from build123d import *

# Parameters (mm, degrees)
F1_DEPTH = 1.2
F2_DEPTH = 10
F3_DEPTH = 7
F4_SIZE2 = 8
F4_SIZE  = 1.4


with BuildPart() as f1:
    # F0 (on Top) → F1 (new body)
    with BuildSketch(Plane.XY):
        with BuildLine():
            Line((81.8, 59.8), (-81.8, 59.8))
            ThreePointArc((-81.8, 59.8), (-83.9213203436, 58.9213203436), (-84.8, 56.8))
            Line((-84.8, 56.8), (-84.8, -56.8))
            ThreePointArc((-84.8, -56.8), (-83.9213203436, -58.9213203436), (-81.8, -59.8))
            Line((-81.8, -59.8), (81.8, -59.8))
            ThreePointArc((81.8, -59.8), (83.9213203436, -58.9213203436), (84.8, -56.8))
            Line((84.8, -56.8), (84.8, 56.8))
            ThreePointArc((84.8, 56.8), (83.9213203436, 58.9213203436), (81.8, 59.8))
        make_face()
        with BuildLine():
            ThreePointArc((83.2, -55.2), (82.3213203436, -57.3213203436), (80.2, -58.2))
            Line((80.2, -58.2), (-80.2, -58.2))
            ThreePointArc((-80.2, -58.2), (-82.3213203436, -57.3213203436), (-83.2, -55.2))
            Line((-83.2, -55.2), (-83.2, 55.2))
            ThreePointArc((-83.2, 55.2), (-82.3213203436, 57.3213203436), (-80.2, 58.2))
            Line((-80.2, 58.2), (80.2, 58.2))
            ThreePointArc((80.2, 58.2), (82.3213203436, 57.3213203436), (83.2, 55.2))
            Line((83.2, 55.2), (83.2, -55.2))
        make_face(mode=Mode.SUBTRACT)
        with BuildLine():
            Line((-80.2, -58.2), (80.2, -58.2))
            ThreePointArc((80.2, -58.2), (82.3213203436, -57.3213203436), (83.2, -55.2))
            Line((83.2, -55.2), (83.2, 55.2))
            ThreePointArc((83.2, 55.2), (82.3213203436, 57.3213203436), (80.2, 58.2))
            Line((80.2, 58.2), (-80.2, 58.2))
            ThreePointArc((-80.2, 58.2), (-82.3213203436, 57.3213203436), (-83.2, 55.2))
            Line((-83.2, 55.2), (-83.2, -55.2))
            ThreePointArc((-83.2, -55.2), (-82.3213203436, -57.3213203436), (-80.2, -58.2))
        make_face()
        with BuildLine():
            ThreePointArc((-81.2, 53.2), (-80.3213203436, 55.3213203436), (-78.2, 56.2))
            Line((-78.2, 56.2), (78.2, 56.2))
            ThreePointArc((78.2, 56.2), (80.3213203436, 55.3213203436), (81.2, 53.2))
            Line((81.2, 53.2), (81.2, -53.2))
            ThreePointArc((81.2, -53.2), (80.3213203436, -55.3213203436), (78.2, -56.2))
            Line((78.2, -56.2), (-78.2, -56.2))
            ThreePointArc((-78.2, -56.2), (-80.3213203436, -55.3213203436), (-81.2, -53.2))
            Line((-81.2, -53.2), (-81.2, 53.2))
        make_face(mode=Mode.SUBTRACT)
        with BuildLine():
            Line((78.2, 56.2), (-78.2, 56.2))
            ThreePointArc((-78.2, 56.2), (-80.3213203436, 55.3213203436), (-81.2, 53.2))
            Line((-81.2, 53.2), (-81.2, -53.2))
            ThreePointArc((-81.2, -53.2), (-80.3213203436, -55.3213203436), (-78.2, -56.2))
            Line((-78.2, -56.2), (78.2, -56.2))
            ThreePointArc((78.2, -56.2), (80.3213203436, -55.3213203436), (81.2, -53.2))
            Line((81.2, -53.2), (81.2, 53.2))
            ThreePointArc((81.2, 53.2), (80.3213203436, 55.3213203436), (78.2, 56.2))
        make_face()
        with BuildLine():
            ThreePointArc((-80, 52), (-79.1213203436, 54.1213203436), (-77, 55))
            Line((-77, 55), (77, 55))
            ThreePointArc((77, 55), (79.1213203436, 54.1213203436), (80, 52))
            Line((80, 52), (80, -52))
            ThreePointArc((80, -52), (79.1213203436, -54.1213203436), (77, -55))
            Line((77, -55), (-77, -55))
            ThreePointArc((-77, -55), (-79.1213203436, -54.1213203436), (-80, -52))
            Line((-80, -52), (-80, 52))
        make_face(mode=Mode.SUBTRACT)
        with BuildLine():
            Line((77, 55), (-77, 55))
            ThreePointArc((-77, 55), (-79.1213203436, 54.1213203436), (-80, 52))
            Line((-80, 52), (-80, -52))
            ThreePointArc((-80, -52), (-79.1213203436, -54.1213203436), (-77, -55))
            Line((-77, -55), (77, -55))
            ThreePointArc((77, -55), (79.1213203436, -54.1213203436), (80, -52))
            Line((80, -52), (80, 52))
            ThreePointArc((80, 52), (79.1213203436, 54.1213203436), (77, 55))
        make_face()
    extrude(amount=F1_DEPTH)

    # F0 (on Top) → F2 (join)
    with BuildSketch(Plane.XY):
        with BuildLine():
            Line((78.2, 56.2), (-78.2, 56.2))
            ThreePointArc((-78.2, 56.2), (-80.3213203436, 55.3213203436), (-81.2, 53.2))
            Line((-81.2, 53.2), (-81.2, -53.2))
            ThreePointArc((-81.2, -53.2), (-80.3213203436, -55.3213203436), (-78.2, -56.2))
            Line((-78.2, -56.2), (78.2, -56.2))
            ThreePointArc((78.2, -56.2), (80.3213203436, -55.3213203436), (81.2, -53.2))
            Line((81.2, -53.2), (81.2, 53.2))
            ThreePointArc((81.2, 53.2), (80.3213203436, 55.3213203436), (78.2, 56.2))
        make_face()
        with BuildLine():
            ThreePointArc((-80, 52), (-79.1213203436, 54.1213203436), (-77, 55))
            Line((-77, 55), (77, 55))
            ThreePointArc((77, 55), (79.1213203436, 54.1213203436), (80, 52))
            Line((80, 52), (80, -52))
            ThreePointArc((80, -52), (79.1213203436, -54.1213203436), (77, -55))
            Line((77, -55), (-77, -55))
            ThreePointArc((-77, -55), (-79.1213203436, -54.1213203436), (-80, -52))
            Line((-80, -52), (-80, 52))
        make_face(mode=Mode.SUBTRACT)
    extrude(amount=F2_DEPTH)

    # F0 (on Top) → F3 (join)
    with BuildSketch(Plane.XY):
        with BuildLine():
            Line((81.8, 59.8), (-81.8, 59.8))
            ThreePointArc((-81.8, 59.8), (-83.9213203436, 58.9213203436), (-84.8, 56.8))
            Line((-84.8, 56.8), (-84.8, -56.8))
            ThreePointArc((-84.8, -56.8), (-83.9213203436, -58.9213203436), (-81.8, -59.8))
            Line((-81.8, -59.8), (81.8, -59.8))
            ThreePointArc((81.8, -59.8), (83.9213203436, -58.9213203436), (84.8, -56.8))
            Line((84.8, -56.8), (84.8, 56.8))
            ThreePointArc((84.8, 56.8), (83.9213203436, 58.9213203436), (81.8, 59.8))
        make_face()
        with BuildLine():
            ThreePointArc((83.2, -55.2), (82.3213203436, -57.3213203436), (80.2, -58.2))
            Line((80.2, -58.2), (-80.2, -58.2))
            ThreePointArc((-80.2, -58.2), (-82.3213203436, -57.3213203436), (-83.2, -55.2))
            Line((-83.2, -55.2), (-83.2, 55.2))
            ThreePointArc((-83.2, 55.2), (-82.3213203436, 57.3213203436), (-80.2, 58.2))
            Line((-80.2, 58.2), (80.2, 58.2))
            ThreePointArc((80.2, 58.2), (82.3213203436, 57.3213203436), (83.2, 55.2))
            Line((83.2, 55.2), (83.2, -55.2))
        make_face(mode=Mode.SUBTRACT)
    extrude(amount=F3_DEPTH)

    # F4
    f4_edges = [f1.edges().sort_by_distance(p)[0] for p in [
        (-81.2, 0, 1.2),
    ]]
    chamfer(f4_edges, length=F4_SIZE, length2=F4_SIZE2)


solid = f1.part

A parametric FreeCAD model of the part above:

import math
import FreeCAD as App
import Part
import Sketcher

V = App.Vector
Q = App.Units.Quantity


def edges_at(feature, points):
    """Names of the edges that pass closest to the given points."""
    edges = feature.Shape.Edges
    near = lambda p: min(range(len(edges)), key=lambda i: edges[i].distToShape(Part.Vertex(*p))[0])
    return sorted({f"Edge{near(p) + 1}" for p in points})

doc = App.newDocument("Part")
body = doc.addObject("PartDesign::Body", "Body")

sketch1 = body.newObject("Sketcher::SketchObject", "Sketch")
sketch1.AttachmentSupport = (doc.getObject("XY_Plane"), [""])
sketch1.MapMode = "FlatFace"
sketch1.addGeometry([
    Part.LineSegment(V(81.8, 59.8, 0), V(-81.8, 59.8, 0)),
    Part.ArcOfCircle(Part.Circle(V(-81.8, 56.8, 0), V(0, 0, 1), 3), math.radians(90), math.radians(180)),
    Part.LineSegment(V(-84.8, 56.8, 0), V(-84.8, -56.8, 0)),
    Part.ArcOfCircle(Part.Circle(V(-81.8, -56.8, 0), V(0, 0, 1), 3), math.radians(180), math.radians(270)),
    Part.LineSegment(V(-81.8, -59.8, 0), V(81.8, -59.8, 0)),
    Part.ArcOfCircle(Part.Circle(V(81.8, -56.8, 0), V(0, 0, 1), 3), math.radians(-90), math.radians(0)),
    Part.LineSegment(V(84.8, -56.8, 0), V(84.8, 56.8, 0)),
    Part.ArcOfCircle(Part.Circle(V(81.8, 56.8, 0), V(0, 0, 1), 3), math.radians(0), math.radians(90)),
], False)
sketch1.addConstraint([
    Sketcher.Constraint("Tangent", 0, 2, 1, 1),
    Sketcher.Constraint("Tangent", 1, 2, 2, 1),
    Sketcher.Constraint("Tangent", 2, 2, 3, 1),
    Sketcher.Constraint("Tangent", 3, 2, 4, 1),
    Sketcher.Constraint("Tangent", 4, 2, 5, 1),
    Sketcher.Constraint("Tangent", 5, 2, 6, 1),
    Sketcher.Constraint("Tangent", 6, 2, 7, 1),
    Sketcher.Constraint("Tangent", 7, 2, 0, 1),
    Sketcher.Constraint("Horizontal", 0),
    Sketcher.Constraint("Vertical", 2),
    Sketcher.Constraint("Horizontal", 4),
    Sketcher.Constraint("Vertical", 6),
    Sketcher.Constraint("Equal", 1, 3),
    Sketcher.Constraint("Equal", 3, 5),
    Sketcher.Constraint("Equal", 5, 7),
    Sketcher.Constraint("Symmetric", 1, 3, 5, 3, -1, 1),
    Sketcher.Constraint("Radius", 1, Q("3 mm")),
    Sketcher.Constraint("DistanceX", 0, 2, 0, 1, Q("163.6 mm")),
    Sketcher.Constraint("DistanceY", 2, 2, 2, 1, Q("113.6 mm")),
])
pad1 = body.newObject("PartDesign::Pad", "Pad")
pad1.Profile = sketch1
pad1.Length = 1.2

sketch2 = body.newObject("Sketcher::SketchObject", "Sketch001")
sketch2.AttachmentSupport = (doc.getObject("XY_Plane"), [""])
sketch2.MapMode = "FlatFace"
sketch2.addGeometry([
    Part.LineSegment(V(78.2, 56.2, 0), V(-78.2, 56.2, 0)),
    Part.ArcOfCircle(Part.Circle(V(-78.2, 53.2, 0), V(0, 0, 1), 3), math.radians(90), math.radians(180)),
    Part.LineSegment(V(-81.2, 53.2, 0), V(-81.2, -53.2, 0)),
    Part.ArcOfCircle(Part.Circle(V(-78.2, -53.2, 0), V(0, 0, 1), 3), math.radians(180), math.radians(270)),
    Part.LineSegment(V(-78.2, -56.2, 0), V(78.2, -56.2, 0)),
    Part.ArcOfCircle(Part.Circle(V(78.2, -53.2, 0), V(0, 0, 1), 3), math.radians(-90), math.radians(0)),
    Part.LineSegment(V(81.2, -53.2, 0), V(81.2, 53.2, 0)),
    Part.ArcOfCircle(Part.Circle(V(78.2, 53.2, 0), V(0, 0, 1), 3), math.radians(0), math.radians(90)),
    Part.LineSegment(V(-80, -52, 0), V(-80, 52, 0)),
    Part.ArcOfCircle(Part.Circle(V(-77, 52, 0), V(0, 0, 1), 3), math.radians(90), math.radians(180)),
    Part.LineSegment(V(-77, 55, 0), V(77, 55, 0)),
    Part.ArcOfCircle(Part.Circle(V(77, 52, 0), V(0, 0, 1), 3), math.radians(0), math.radians(90)),
    Part.LineSegment(V(80, 52, 0), V(80, -52, 0)),
    Part.ArcOfCircle(Part.Circle(V(77, -52, 0), V(0, 0, 1), 3), math.radians(-90), math.radians(0)),
    Part.LineSegment(V(77, -55, 0), V(-77, -55, 0)),
    Part.ArcOfCircle(Part.Circle(V(-77, -52, 0), V(0, 0, 1), 3), math.radians(180), math.radians(270)),
], False)
sketch2.addConstraint([
    Sketcher.Constraint("Tangent", 0, 2, 1, 1),
    Sketcher.Constraint("Tangent", 1, 2, 2, 1),
    Sketcher.Constraint("Tangent", 2, 2, 3, 1),
    Sketcher.Constraint("Tangent", 3, 2, 4, 1),
    Sketcher.Constraint("Tangent", 4, 2, 5, 1),
    Sketcher.Constraint("Tangent", 5, 2, 6, 1),
    Sketcher.Constraint("Tangent", 6, 2, 7, 1),
    Sketcher.Constraint("Tangent", 7, 2, 0, 1),
    Sketcher.Constraint("Tangent", 8, 2, 9, 2),
    Sketcher.Constraint("Tangent", 9, 1, 10, 1),
    Sketcher.Constraint("Tangent", 10, 2, 11, 2),
    Sketcher.Constraint("Tangent", 11, 1, 12, 1),
    Sketcher.Constraint("Tangent", 12, 2, 13, 2),
    Sketcher.Constraint("Tangent", 13, 1, 14, 1),
    Sketcher.Constraint("Tangent", 14, 2, 15, 2),
    Sketcher.Constraint("Tangent", 15, 1, 8, 1),
    Sketcher.Constraint("Horizontal", 0),
    Sketcher.Constraint("Vertical", 2),
    Sketcher.Constraint("Horizontal", 4),
    Sketcher.Constraint("Vertical", 6),
    Sketcher.Constraint("Vertical", 8),
    Sketcher.Constraint("Horizontal", 10),
    Sketcher.Constraint("Vertical", 12),
    Sketcher.Constraint("Horizontal", 14),
    Sketcher.Constraint("Equal", 1, 3),
    Sketcher.Constraint("Equal", 3, 5),
    Sketcher.Constraint("Equal", 5, 7),
    Sketcher.Constraint("Equal", 7, 9),
    Sketcher.Constraint("Equal", 9, 11),
    Sketcher.Constraint("Equal", 11, 13),
    Sketcher.Constraint("Equal", 13, 15),
    Sketcher.Constraint("Symmetric", 1, 3, 5, 3, -1, 1),
    Sketcher.Constraint("Symmetric", 9, 3, 13, 3, -1, 1),
    Sketcher.Constraint("Radius", 1, Q("3 mm")),
    Sketcher.Constraint("DistanceX", 10, 1, 10, 2, Q("154 mm")),
    Sketcher.Constraint("DistanceY", 8, 1, 8, 2, Q("104 mm")),
    Sketcher.Constraint("DistanceX", 0, 2, 0, 1, Q("156.4 mm")),
    Sketcher.Constraint("DistanceY", 2, 2, 2, 1, Q("106.4 mm")),
])
pad2 = body.newObject("PartDesign::Pad", "Pad001")
pad2.Profile = sketch2
pad2.Length = 10

sketch3 = body.newObject("Sketcher::SketchObject", "Sketch002")
sketch3.AttachmentSupport = (doc.getObject("XY_Plane"), [""])
sketch3.MapMode = "FlatFace"
sketch3.addGeometry([
    Part.LineSegment(V(81.8, 59.8, 0), V(-81.8, 59.8, 0)),
    Part.ArcOfCircle(Part.Circle(V(-81.8, 56.8, 0), V(0, 0, 1), 3), math.radians(90), math.radians(180)),
    Part.LineSegment(V(-84.8, 56.8, 0), V(-84.8, -56.8, 0)),
    Part.ArcOfCircle(Part.Circle(V(-81.8, -56.8, 0), V(0, 0, 1), 3), math.radians(180), math.radians(270)),
    Part.LineSegment(V(-81.8, -59.8, 0), V(81.8, -59.8, 0)),
    Part.ArcOfCircle(Part.Circle(V(81.8, -56.8, 0), V(0, 0, 1), 3), math.radians(-90), math.radians(0)),
    Part.LineSegment(V(84.8, -56.8, 0), V(84.8, 56.8, 0)),
    Part.ArcOfCircle(Part.Circle(V(81.8, 56.8, 0), V(0, 0, 1), 3), math.radians(0), math.radians(90)),
    Part.LineSegment(V(83.2, 55.2, 0), V(83.2, -55.2, 0)),
    Part.ArcOfCircle(Part.Circle(V(80.2, -55.2, 0), V(0, 0, 1), 3), math.radians(-90), math.radians(0)),
    Part.LineSegment(V(80.2, -58.2, 0), V(-80.2, -58.2, 0)),
    Part.ArcOfCircle(Part.Circle(V(-80.2, -55.2, 0), V(0, 0, 1), 3), math.radians(180), math.radians(270)),
    Part.LineSegment(V(-83.2, -55.2, 0), V(-83.2, 55.2, 0)),
    Part.ArcOfCircle(Part.Circle(V(-80.2, 55.2, 0), V(0, 0, 1), 3), math.radians(90), math.radians(180)),
    Part.LineSegment(V(-80.2, 58.2, 0), V(80.2, 58.2, 0)),
    Part.ArcOfCircle(Part.Circle(V(80.2, 55.2, 0), V(0, 0, 1), 3), math.radians(0), math.radians(90)),
], False)
sketch3.addConstraint([
    Sketcher.Constraint("Tangent", 0, 2, 1, 1),
    Sketcher.Constraint("Tangent", 1, 2, 2, 1),
    Sketcher.Constraint("Tangent", 2, 2, 3, 1),
    Sketcher.Constraint("Tangent", 3, 2, 4, 1),
    Sketcher.Constraint("Tangent", 4, 2, 5, 1),
    Sketcher.Constraint("Tangent", 5, 2, 6, 1),
    Sketcher.Constraint("Tangent", 6, 2, 7, 1),
    Sketcher.Constraint("Tangent", 7, 2, 0, 1),
    Sketcher.Constraint("Tangent", 8, 2, 9, 2),
    Sketcher.Constraint("Tangent", 9, 1, 10, 1),
    Sketcher.Constraint("Tangent", 10, 2, 11, 2),
    Sketcher.Constraint("Tangent", 11, 1, 12, 1),
    Sketcher.Constraint("Tangent", 12, 2, 13, 2),
    Sketcher.Constraint("Tangent", 13, 1, 14, 1),
    Sketcher.Constraint("Tangent", 14, 2, 15, 2),
    Sketcher.Constraint("Tangent", 15, 1, 8, 1),
    Sketcher.Constraint("Horizontal", 0),
    Sketcher.Constraint("Vertical", 2),
    Sketcher.Constraint("Horizontal", 4),
    Sketcher.Constraint("Vertical", 6),
    Sketcher.Constraint("Vertical", 8),
    Sketcher.Constraint("Horizontal", 10),
    Sketcher.Constraint("Vertical", 12),
    Sketcher.Constraint("Horizontal", 14),
    Sketcher.Constraint("Equal", 1, 3),
    Sketcher.Constraint("Equal", 3, 5),
    Sketcher.Constraint("Equal", 5, 7),
    Sketcher.Constraint("Equal", 7, 9),
    Sketcher.Constraint("Equal", 9, 11),
    Sketcher.Constraint("Equal", 11, 13),
    Sketcher.Constraint("Equal", 13, 15),
    Sketcher.Constraint("Symmetric", 1, 3, 5, 3, -1, 1),
    Sketcher.Constraint("Symmetric", 9, 3, 13, 3, -1, 1),
    Sketcher.Constraint("Radius", 1, Q("3 mm")),
    Sketcher.Constraint("DistanceX", 0, 2, 0, 1, Q("163.6 mm")),
    Sketcher.Constraint("DistanceX", 10, 2, 10, 1, Q("160.4 mm")),
    Sketcher.Constraint("DistanceY", 2, 2, 2, 1, Q("113.6 mm")),
    Sketcher.Constraint("DistanceY", 8, 2, 8, 1, Q("110.4 mm")),
])
pad3 = body.newObject("PartDesign::Pad", "Pad002")
pad3.Profile = sketch3
pad3.Length = 7
doc.recompute()

chamfer = body.newObject("PartDesign::Chamfer", "Chamfer")
chamfer.Base = (pad3, edges_at(pad3, [(-81.2, 0, 1.2)]))
chamfer.ChamferType = "Two distances"
chamfer.Size = 1.4
chamfer.Size2 = 8

doc.recompute()
